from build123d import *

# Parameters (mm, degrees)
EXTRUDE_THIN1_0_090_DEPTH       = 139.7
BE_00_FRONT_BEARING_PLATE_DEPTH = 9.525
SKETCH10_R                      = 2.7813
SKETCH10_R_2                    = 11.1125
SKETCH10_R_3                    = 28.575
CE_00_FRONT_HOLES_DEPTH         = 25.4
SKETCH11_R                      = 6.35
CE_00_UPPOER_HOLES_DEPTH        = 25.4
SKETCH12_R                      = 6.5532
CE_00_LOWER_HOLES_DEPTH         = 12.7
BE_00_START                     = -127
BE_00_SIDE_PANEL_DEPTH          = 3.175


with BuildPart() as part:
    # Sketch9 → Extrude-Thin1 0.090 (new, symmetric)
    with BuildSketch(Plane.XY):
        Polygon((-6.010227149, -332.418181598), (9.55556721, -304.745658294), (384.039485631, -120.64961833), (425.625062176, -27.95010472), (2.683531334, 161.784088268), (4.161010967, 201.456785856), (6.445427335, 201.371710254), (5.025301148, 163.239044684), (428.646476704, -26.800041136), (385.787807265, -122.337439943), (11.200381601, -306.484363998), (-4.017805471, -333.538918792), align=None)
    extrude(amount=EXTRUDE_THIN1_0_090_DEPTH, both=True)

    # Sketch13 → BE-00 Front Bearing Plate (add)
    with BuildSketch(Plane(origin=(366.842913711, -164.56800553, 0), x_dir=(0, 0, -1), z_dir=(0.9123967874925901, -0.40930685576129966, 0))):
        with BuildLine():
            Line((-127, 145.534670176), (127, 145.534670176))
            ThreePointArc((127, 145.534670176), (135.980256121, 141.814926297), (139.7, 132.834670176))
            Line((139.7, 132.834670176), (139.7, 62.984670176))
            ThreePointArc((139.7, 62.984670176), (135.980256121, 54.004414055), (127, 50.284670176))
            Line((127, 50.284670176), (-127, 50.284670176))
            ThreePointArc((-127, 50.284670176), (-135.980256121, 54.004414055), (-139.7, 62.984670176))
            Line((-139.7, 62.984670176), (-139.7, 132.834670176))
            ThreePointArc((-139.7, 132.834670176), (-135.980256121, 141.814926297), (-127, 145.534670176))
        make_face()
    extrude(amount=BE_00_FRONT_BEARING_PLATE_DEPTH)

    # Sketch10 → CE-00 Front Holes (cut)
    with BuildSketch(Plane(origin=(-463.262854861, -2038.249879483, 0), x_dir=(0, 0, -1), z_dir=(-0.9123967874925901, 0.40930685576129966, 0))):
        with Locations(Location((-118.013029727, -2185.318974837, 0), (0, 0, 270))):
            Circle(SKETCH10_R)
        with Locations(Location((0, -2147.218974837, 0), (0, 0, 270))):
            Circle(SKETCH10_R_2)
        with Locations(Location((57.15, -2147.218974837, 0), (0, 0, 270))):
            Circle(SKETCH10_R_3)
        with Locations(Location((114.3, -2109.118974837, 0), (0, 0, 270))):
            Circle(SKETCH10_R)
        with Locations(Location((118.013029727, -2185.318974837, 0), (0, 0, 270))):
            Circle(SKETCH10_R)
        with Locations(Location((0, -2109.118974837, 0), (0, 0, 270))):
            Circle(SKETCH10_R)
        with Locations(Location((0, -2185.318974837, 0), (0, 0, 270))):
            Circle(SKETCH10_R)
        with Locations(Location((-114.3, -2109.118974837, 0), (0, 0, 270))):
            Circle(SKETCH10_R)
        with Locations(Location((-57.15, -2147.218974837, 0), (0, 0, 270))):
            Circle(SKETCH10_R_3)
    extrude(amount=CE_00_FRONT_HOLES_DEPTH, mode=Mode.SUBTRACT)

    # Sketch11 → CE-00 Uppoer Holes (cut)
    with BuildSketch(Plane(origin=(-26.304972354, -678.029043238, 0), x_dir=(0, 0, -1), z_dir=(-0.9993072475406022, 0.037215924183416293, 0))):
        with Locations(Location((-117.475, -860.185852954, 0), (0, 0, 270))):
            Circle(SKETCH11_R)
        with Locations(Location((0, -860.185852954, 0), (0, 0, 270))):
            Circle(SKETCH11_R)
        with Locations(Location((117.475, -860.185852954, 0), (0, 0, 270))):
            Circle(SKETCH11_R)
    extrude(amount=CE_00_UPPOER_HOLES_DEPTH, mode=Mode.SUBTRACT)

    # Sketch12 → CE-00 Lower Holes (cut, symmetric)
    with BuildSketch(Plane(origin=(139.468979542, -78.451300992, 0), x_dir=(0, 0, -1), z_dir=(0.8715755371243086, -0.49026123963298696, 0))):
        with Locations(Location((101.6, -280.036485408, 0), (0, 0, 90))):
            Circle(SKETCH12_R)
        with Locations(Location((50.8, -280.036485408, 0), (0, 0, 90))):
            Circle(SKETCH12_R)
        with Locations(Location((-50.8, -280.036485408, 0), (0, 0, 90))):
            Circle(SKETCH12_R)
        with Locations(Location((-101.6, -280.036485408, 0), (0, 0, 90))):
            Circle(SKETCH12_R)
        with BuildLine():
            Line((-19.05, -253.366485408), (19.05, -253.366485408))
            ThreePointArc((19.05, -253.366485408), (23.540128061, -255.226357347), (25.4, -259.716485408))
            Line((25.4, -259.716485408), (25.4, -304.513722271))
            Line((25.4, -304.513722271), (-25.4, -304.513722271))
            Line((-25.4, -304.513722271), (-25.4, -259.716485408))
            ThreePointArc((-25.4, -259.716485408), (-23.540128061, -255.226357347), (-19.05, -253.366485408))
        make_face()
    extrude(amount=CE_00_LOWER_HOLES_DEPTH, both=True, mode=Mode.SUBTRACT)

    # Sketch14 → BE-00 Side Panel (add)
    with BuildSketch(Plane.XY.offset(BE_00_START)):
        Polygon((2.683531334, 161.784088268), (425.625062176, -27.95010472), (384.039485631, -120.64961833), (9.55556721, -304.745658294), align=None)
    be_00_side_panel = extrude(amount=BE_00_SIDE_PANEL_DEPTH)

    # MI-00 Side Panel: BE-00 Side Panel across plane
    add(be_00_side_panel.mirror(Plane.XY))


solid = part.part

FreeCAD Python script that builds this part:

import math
import FreeCAD as App
import Part
import Sketcher
Q = App.Units.Quantity


def add_polygon(sketch, points):
    """Adds a closed chain of lines whose ends are joined by coincident constraints."""
    first, n = sketch.GeometryCount, len(points)
    for a, b in zip(points, points[1:] + points[:1]):
        sketch.addGeometry(Part.LineSegment(App.Vector(*a, 0), App.Vector(*b, 0)), False)
    for i in range(n):
        sketch.addConstraint(Sketcher.Constraint("Coincident", first + i, 2, first + (i + 1) % n, 1))

doc = App.newDocument("Part")
body = doc.addObject("PartDesign::Body", "Body")

# Sketch on XY plane
sketch1 = body.newObject("Sketcher::SketchObject", "Sketch")
sketch1.AttachmentSupport = (doc.getObject("XY_Plane"), [""])
sketch1.MapMode = "FlatFace"
add_polygon(sketch1, [(9.6, -304.7), (-6, -332.4), (-4, -333.5), (11.2, -306.5), (385.8, -122.3), (428.6, -26.8), (5, 163.2), (6.4, 201.4), (4.2, 201.5), (2.7, 161.8), (425.6, -28), (384, -120.6)])  # lines 0-11
sketch1.addConstraint([
    Sketcher.Constraint("Perpendicular", 0, 1),
    Sketcher.Constraint("Perpendicular", 1, 2),
    Sketcher.Constraint("Perpendicular", 4, 5),
    Sketcher.Constraint("Perpendicular", 6, 7),
    Sketcher.Constraint("Perpendicular", 7, 8),
    Sketcher.Constraint("Parallel", 5, 9),
    Sketcher.Constraint("Perpendicular", 9, 10),
    Sketcher.Constraint("Parallel", 3, 11),
    Sketcher.Constraint("Equal", 1, 7),
    Sketcher.Constraint("Distance", 10, Q("4 in")),
    Sketcher.Constraint("Distance", 0, Q("1.25 in")),
    Sketcher.Constraint("Distance", 1, Q("0.09 in")),
    Sketcher.Constraint("Distance", 9, Q("18.25 in")),
    Sketcher.Constraint("Distance", 8, Q("1.563 in")),
    Sketcher.Constraint("Distance", 5, 464.2949),
    Sketcher.Constraint("Distance", 6, 38.1591),
    Sketcher.Constraint("DistanceX", -1, 1, 5, 2, 5.025301),
    Sketcher.Constraint("DistanceY", 3, 2, 4, 2, 95.537399),
    Sketcher.Constraint("DistanceY", 1, 2, 10, 2, 212.8893),
    Sketcher.Constraint("Distance", 11, 417.288338),
    Sketcher.Constraint("DistanceY", 0, 2, -1, 1, 332.418182),
    Sketcher.Constraint("DistanceY", 1, 2, -1, 1, 333.538919),
    Sketcher.Constraint("DistanceX", -1, 1, 2, 2, 11.200382),
    Sketcher.Constraint("DistanceY", 3, 2, -1, 1, 122.33744),
])
pad1 = body.newObject("PartDesign::Pad", "Pad")
pad1.Profile = sketch1
pad1.Length = Q("11 in")
pad1.Midplane = True

# Sketch on an angled plane
sketch2 = body.newObject("Sketcher::SketchObject", "Sketch001")
sketch2.Placement = App.Placement(App.Vector(366.842914, -164.568006, 0), App.Rotation(App.Vector(0, 0, -1), App.Vector(0.409306856, 0.912396787, 0), App.Vector(0.912396787, -0.409306856, 0), "ZXY"))
sketch2.addGeometry([
    Part.LineSegment(App.Vector(127, 146, 0), App.Vector(-127, 146, 0)),  # 0
    Part.ArcOfCircle(Part.Circle(App.Vector(-127, 133, 0), App.Vector(0, 0, 1), 13), math.radians(90), math.radians(180)),  # 1
    Part.LineSegment(App.Vector(-140, 133, 0), App.Vector(-140, 63, 0)),  # 2
    Part.ArcOfCircle(Part.Circle(App.Vector(-127, 63, 0), App.Vector(0, 0, 1), 13), math.radians(180), math.radians(270)),  # 3
    Part.LineSegment(App.Vector(-127, 50, 0), App.Vector(127, 50, 0)),  # 4
    Part.ArcOfCircle(Part.Circle(App.Vector(127, 63, 0), App.Vector(0, 0, 1), 13), math.radians(-90), math.radians(0)),  # 5
    Part.LineSegment(App.Vector(140, 63, 0), App.Vector(140, 133, 0)),  # 6
    Part.ArcOfCircle(Part.Circle(App.Vector(127, 133, 0), App.Vector(0, 0, 1), 13), math.radians(0), math.radians(90)),  # 7
], False)
sketch2.addConstraint([
    Sketcher.Constraint("Tangent", 0, 2, 1, 1),
    Sketcher.Constraint("Tangent", 1, 2, 2, 1),
    Sketcher.Constraint("Tangent", 2, 2, 3, 1),
    Sketcher.Constraint("Tangent", 3, 2, 4, 1),
    Sketcher.Constraint("Tangent", 4, 2, 5, 1),
    Sketcher.Constraint("Tangent", 5, 2, 6, 1),
    Sketcher.Constraint("Tangent", 6, 2, 7, 1),
    Sketcher.Constraint("Tangent", 7, 2, 0, 1),
    Sketcher.Constraint("Horizontal", 0),
    Sketcher.Constraint("Vertical", 2),
    Sketcher.Constraint("Horizontal", 4),
    Sketcher.Constraint("Vertical", 6),
    Sketcher.Constraint("Equal", 1, 3),
    Sketcher.Constraint("Equal", 3, 5),
    Sketcher.Constraint("Equal", 5, 7),
    Sketcher.Constraint("Radius", 1, Q("0.5 in")),
    Sketcher.Constraint("DistanceX", 0, 2, 0, 1, Q("10 in")),
    Sketcher.Constraint("DistanceX", 1, 3, -1, 1, Q("5 in")),
    Sketcher.Constraint("DistanceY", 2, 2, 2, 1, Q("2.75 in")),
    Sketcher.Constraint("DistanceY", -1, 1, 1, 3, 132.83467),
])
pad2 = body.newObject("PartDesign::Pad", "Pad001")
pad2.Profile = sketch2
pad2.Length = Q("0.375 in")

# Sketch on an angled plane
sketch3 = body.newObject("Sketcher::SketchObject", "Sketch002")
sketch3.Placement = App.Placement(App.Vector(-463.262855, -2038.249879, 0), App.Rotation(App.Vector(0, 0, -1), App.Vector(-0.409306856, -0.912396787, 0), App.Vector(-0.912396787, 0.409306856, 0), "ZXY"))
sketch3.addGeometry([
    Part.Circle(App.Vector(-118, -2185.3, 0), App.Vector(0, 0, 1), 2.8),  # 0
    Part.Circle(App.Vector(0, -2147.2, 0), App.Vector(0, 0, 1), 11.1),  # 1
    Part.Circle(App.Vector(57.1, -2147.2, 0), App.Vector(0, 0, 1), 28.6),  # 2
    Part.Circle(App.Vector(114.3, -2109.1, 0), App.Vector(0, 0, 1), 2.8),  # 3
    Part.Circle(App.Vector(118, -2185.3, 0), App.Vector(0, 0, 1), 2.8),  # 4
    Part.Circle(App.Vector(0, -2109.1, 0), App.Vector(0, 0, 1), 2.8),  # 5
    Part.Circle(App.Vector(0, -2185.3, 0), App.Vector(0, 0, 1), 2.8),  # 6
    Part.Circle(App.Vector(-114.3, -2109.1, 0), App.Vector(0, 0, 1), 2.8),  # 7
    Part.Circle(App.Vector(-57.1, -2147.2, 0), App.Vector(0, 0, 1), 28.6),  # 8
], False)
sketch3.addConstraint([
    Sketcher.Constraint("Equal", 0, 3),
    Sketcher.Constraint("Equal", 3, 4),
    Sketcher.Constraint("Equal", 4, 5),
    Sketcher.Constraint("Equal", 5, 6),
    Sketcher.Constraint("Equal", 6, 7),
    Sketcher.Constraint("Equal", 2, 8),
    Sketcher.Constraint("Symmetric", 0, 3, 4, 3, -2),
    Sketcher.Constraint("Symmetric", 3, 3, 7, 3, -2),
    Sketcher.Constraint("Symmetric", 2, 3, 8, 3, -2),
    Sketcher.Constraint("PointOnObject", 1, 3, -2),
    Sketcher.Constraint("PointOnObject", 5, 3, -2),
    Sketcher.Constraint("PointOnObject", 6, 3, -2),
    Sketcher.Constraint("Horizontal", 1, 3, 2, 3),
    Sketcher.Constraint("Horizontal", 3, 3, 5, 3),
    Sketcher.Constraint("Horizontal", 4, 3, 6, 3),
    Sketcher.Constraint("Diameter", 2, Q("2.25 in")),
    Sketcher.Constraint("Diameter", 0, Q("0.219 in")),
    Sketcher.Constraint("Diameter", 1, Q("0.875 in")),
    Sketcher.Constraint("DistanceY", 0, 3, 3, 3, Q("3 in")),
    Sketcher.Constraint("DistanceX", -1, 1, 3, 3, Q("4.5 in")),
    Sketcher.Constraint("DistanceY", 0, 3, 1, 3, Q("1.5 in")),
    Sketcher.Constraint("DistanceX", -1, 1, 2, 3, Q("2.25 in")),
    Sketcher.Constraint("DistanceX", 0, 3, -1, 1, 118.01303),
    Sketcher.Constraint("DistanceY", 0, 3, -1, 1, 2185.318973),
])
pocket1 = body.newObject("PartDesign::Pocket", "Pocket")
pocket1.Profile = sketch3
pocket1.Length = Q("1 in")
pocket1.Reversed = True

# Sketch on an angled plane
sketch4 = body.newObject("Sketcher::SketchObject", "Sketch003")
sketch4.Placement = App.Placement(App.Vector(-26.304972, -678.029043, 0), App.Rotation(App.Vector(0, 0, -1), App.Vector(-0.037215924, -0.999307248, 0), App.Vector(-0.999307248, 0.037215924, 0), "ZXY"))
sketch4.addGeometry([
    Part.Circle(App.Vector(-117, -860, 0), App.Vector(0, 0, 1), 6),
    Part.Circle(App.Vector(0, -860, 0), App.Vector(0, 0, 1), 6),
    Part.Circle(App.Vector(117, -860, 0), App.Vector(0, 0, 1), 6),
], False)
sketch4.addConstraint([
    Sketcher.Constraint("Equal", 0, 1),
    Sketcher.Constraint("Equal", 1, 2),
    Sketcher.Constraint("Symmetric", 0, 3, 2, 3, -2),
    Sketcher.Constraint("PointOnObject", 1, 3, -2),
    Sketcher.Constraint("Horizontal", 0, 3, 1, 3),
    Sketcher.Constraint("Diameter", 0, Q("0.5 in")),
    Sketcher.Constraint("DistanceX", 0, 3, 2, 3, Q("9.25 in")),
    Sketcher.Constraint("DistanceY", 0, 3, -1, 1, 860.185854),
])
pocket2 = body.newObject("PartDesign::Pocket", "Pocket001")
pocket2.Profile = sketch4
pocket2.Length = Q("1 in")
pocket2.Reversed = True

# Sketch on an angled plane
sketch5 = body.newObject("Sketcher::SketchObject", "Sketch004")
sketch5.Placement = App.Placement(App.Vector(139.46898, -78.451301, 0), App.Rotation(App.Vector(0, 0, -1), App.Vector(0.49026124, 0.871575537, 0), App.Vector(0.871575537, -0.49026124, 0), "ZXY"))
sketch5.addGeometry([
    Part.Circle(App.Vector(102, -280, 0), App.Vector(0, 0, 1), 7),  # 0
    Part.Circle(App.Vector(51, -280, 0), App.Vector(0, 0, 1), 7),  # 1
    Part.Circle(App.Vector(-51, -280, 0), App.Vector(0, 0, 1), 7),  # 2
    Part.Circle(App.Vector(-102, -280, 0), App.Vector(0, 0, 1), 7),  # 3
    Part.LineSegment(App.Vector(19, -253, 0), App.Vector(-19, -253, 0)),  # 4
    Part.ArcOfCircle(Part.Circle(App.Vector(-19, -260, 0), App.Vector(0, 0, 1), 6), math.radians(90), math.radians(180)),  # 5
    Part.LineSegment(App.Vector(-25, -260, 0), App.Vector(-25, -305, 0)),  # 6
    Part.LineSegment(App.Vector(-25, -305, 0), App.Vector(25, -305, 0)),  # 7
    Part.LineSegment(App.Vector(25, -305, 0), App.Vector(25, -260, 0)),  # 8
    Part.ArcOfCircle(Part.Circle(App.Vector(19, -260, 0), App.Vector(0, 0, 1), 6), math.radians(0), math.radians(90)),  # 9
], False)
sketch5.addConstraint([
    Sketcher.Constraint("Tangent", 4, 2, 5, 1),
    Sketcher.Constraint("Tangent", 5, 2, 6, 1),
    Sketcher.Constraint("Coincident", 6, 2, 7, 1),
    Sketcher.Constraint("Coincident", 7, 2, 8, 1),
    Sketcher.Constraint("Tangent", 8, 2, 9, 1),
    Sketcher.Constraint("Tangent", 9, 2, 4, 1),
    Sketcher.Constraint("Horizontal", 4),
    Sketcher.Constraint("Vertical", 6),
    Sketcher.Constraint("Horizontal", 7),
    Sketcher.Constraint("Vertical", 8),
    Sketcher.Constraint("Equal", 0, 1),
    Sketcher.Constraint("Equal", 1, 2),
    Sketcher.Constraint("Equal", 2, 3),
    Sketcher.Constraint("Equal", 5, 9),
    Sketcher.Constraint("Symmetric", 1, 3, 2, 3, -2),
    Sketcher.Constraint("Symmetric", 0, 3, 3, 3, -2),
    Sketcher.Constraint("Horizontal", 0, 3, 1, 3),
    Sketcher.Constraint("DistanceX", 7, 1, 7, 2, Q("2 in")),
    Sketcher.Constraint("Radius", 5, Q("0.25 in")),
    Sketcher.Constraint("Diameter", 0, Q("0.516 in")),
    Sketcher.Constraint("DistanceX", -1, 1, 0, 3, Q("4 in")),
    Sketcher.Constraint("DistanceX", -1, 1, 1, 3, Q("2 in")),
    Sketcher.Constraint("DistanceX", 5, 2, -1, 1, Q("1 in")),
    Sketcher.Constraint("DistanceY", 2, 3, 5, 3, Q("0.8 in")),
    Sketcher.Constraint("DistanceY", 6, 2, 6, 1, 44.797237),
    Sketcher.Constraint("DistanceY", 0, 3, -1, 1, 280.036485),
])
pocket3 = body.newObject("PartDesign::Pocket", "Pocket002")
pocket3.Profile = sketch5
pocket3.Length = Q("1 in")
pocket3.Midplane = True

# Sketch on XY plane
sketch6 = body.newObject("Sketcher::SketchObject", "Sketch005")
sketch6.AttachmentSupport = (doc.getObject("XY_Plane"), [""])
sketch6.MapMode = "FlatFace"
sketch6.AttachmentOffset = App.Placement(App.Vector(0, 0, -5 * 25.4), App.Rotation())
add_polygon(sketch6, [(426, -28), (3, 162), (10, -305), (384, -121)])  # lines 0-3
sketch6.addConstraint([
    Sketcher.Constraint("Perpendicular", 0, 3),
    Sketcher.Constraint("Distance", 3, Q("4 in")),
    Sketcher.Constraint("Distance", 0, Q("18.25 in")),
    Sketcher.Constraint("Distance", 2, 417.288338),
    Sketcher.Constraint("DistanceX", -1, 1, 0, 2, 2.683531),
    Sketcher.Constraint("DistanceY", -1, 1, 0, 2, 161.784088),
    Sketcher.Constraint("DistanceY", 1, 2, -1, 1, 304.745658),
    Sketcher.Constraint("DistanceY", 2, 2, -1, 1, 120.649618),
])
pad3 = body.newObject("PartDesign::Pad", "Pad002")
pad3.Profile = sketch6
pad3.Length = Q("0.125 in")
doc.recompute()

mirrored = body.newObject("PartDesign::Mirrored", "Mirrored")
mirrored.Originals = [pad3]
mirrored.MirrorPlane = (doc.getObject("XY_Plane"), [""])
body.Tip = mirrored

doc.recompute()
